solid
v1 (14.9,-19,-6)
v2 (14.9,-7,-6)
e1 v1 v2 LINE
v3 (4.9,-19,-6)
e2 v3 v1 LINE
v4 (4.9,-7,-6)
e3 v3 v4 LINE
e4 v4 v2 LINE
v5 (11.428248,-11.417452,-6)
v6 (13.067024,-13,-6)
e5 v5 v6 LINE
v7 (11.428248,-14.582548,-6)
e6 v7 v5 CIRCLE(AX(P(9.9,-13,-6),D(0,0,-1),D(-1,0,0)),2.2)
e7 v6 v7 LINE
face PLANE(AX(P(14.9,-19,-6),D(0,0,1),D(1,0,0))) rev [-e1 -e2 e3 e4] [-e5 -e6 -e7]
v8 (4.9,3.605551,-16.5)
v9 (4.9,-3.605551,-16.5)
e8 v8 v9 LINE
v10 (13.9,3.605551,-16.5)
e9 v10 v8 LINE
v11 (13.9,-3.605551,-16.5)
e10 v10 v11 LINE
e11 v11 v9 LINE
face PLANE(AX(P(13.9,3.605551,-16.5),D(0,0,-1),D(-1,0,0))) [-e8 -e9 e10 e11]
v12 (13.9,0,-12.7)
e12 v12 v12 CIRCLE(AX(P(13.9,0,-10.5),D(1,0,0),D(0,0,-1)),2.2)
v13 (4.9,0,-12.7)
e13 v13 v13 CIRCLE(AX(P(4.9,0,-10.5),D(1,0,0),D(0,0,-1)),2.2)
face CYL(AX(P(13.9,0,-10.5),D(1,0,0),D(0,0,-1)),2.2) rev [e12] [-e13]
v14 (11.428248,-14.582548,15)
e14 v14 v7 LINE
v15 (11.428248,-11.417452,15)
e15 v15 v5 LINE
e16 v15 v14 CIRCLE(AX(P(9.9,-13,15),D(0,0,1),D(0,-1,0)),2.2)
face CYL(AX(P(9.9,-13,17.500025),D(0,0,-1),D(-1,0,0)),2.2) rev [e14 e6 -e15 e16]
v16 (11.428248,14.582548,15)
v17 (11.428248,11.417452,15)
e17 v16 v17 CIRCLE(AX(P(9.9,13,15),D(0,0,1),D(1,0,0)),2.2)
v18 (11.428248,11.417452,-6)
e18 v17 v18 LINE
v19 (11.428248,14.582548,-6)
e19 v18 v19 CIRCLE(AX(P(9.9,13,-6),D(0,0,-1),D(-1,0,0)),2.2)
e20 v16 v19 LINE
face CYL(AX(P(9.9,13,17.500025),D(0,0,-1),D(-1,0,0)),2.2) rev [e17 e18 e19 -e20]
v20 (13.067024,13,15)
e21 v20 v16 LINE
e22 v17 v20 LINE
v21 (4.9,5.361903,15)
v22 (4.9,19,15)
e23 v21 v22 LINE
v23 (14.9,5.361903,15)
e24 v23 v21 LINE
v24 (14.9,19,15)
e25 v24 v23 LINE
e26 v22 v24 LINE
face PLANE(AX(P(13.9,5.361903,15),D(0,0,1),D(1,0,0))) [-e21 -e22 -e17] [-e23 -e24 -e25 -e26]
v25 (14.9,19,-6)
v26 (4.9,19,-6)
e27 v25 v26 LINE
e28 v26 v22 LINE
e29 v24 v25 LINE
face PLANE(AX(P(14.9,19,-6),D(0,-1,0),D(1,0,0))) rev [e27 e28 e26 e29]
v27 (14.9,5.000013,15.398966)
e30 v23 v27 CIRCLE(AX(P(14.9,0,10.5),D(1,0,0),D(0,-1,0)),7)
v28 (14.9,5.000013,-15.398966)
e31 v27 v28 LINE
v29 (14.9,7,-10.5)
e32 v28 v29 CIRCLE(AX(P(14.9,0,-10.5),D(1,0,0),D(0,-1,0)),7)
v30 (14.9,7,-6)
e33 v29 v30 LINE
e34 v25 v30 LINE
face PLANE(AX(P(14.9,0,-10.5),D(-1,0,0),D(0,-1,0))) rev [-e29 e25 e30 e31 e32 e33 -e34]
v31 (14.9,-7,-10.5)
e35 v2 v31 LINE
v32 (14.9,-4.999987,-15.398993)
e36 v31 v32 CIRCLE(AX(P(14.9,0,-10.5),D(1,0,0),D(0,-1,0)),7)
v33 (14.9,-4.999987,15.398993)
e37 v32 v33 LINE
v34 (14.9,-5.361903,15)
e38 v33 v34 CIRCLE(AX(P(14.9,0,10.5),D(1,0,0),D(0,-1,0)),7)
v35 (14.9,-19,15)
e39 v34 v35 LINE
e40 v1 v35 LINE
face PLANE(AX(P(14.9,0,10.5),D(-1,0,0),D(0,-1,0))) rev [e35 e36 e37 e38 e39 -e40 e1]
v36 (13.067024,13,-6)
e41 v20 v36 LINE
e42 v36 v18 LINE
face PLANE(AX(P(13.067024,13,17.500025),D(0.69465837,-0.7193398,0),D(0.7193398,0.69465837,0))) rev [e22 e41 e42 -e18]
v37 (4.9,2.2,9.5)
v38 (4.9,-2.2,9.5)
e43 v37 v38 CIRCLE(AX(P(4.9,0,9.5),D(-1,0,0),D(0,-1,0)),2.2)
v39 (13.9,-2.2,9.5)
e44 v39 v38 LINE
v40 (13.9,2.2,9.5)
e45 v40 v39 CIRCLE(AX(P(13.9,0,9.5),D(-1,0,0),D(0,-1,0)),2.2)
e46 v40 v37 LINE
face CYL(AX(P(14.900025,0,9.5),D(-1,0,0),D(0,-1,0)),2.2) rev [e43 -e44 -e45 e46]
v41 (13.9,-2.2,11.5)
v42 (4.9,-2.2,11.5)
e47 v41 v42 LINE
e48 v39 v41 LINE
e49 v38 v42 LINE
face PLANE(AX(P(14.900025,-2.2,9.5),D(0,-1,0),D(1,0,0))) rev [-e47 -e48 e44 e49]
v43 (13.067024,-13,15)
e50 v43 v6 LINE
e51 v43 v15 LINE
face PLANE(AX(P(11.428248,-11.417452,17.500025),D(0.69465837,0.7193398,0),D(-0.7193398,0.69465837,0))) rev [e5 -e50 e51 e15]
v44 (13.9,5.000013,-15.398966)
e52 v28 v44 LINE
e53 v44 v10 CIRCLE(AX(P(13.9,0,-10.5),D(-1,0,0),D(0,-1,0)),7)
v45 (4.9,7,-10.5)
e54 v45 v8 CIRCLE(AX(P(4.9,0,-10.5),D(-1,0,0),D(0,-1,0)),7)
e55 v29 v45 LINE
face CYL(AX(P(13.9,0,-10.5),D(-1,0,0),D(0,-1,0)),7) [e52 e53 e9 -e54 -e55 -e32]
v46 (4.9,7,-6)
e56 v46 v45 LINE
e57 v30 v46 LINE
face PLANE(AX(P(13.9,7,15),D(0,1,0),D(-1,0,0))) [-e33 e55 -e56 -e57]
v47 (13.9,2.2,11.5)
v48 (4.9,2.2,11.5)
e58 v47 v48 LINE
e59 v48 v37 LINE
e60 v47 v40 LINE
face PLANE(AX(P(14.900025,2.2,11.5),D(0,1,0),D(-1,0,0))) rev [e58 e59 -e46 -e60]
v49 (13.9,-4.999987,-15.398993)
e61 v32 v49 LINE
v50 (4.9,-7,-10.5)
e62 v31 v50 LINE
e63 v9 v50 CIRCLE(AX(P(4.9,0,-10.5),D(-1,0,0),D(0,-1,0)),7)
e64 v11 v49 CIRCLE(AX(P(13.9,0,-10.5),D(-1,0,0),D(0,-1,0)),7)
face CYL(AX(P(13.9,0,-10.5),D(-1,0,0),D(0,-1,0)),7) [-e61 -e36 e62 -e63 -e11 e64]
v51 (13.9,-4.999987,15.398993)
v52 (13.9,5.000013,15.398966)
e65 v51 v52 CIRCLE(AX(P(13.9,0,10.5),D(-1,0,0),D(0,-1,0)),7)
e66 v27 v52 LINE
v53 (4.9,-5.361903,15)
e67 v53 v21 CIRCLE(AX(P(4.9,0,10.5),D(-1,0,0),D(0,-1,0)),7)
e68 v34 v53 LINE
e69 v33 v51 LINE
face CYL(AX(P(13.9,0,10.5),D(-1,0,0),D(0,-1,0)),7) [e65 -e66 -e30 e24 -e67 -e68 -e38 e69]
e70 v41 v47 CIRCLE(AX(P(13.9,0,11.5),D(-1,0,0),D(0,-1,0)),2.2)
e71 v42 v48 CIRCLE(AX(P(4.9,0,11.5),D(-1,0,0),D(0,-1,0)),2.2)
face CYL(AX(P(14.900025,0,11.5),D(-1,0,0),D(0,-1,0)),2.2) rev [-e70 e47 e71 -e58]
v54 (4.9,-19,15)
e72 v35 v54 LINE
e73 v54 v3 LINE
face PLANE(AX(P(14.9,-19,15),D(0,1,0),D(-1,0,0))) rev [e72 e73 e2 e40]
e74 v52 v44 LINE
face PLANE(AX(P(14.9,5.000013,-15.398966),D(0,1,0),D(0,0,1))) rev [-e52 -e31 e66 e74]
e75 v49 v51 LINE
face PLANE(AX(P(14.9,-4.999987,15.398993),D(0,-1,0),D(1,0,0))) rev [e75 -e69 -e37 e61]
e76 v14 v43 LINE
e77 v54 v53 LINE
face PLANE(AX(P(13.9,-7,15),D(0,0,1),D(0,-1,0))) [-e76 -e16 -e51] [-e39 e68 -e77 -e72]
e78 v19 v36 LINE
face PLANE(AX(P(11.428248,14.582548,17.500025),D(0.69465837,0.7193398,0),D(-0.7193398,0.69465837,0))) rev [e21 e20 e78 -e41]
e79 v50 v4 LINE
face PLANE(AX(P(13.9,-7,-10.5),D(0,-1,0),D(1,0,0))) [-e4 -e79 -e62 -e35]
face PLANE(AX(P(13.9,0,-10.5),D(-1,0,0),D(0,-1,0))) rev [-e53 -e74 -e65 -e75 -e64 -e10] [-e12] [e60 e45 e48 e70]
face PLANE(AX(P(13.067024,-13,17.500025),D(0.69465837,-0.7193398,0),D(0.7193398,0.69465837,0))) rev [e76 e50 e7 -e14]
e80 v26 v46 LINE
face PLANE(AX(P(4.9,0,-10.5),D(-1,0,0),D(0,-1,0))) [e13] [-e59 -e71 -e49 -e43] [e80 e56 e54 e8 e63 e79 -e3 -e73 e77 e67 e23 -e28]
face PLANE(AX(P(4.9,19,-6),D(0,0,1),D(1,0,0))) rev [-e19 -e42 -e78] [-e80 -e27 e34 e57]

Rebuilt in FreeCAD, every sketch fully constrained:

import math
import FreeCAD as App
import Part
import Sketcher
Q = App.Units.Quantity


def add_polygon(sketch, points):
    """Adds a closed chain of lines whose ends are joined by coincident constraints."""
    first, n = sketch.GeometryCount, len(points)
    for a, b in zip(points, points[1:] + points[:1]):
        sketch.addGeometry(Part.LineSegment(App.Vector(*a, 0), App.Vector(*b, 0)), False)
    for i in range(n):
        sketch.addConstraint(Sketcher.Constraint("Coincident", first + i, 2, first + (i + 1) % n, 1))

doc = App.newDocument("Part")
params = doc.addObject("Spreadsheet::Sheet", "Params")
for row, (alias, value) in enumerate([
    ("sketch1_radius", "7 mm"),
    ("sketch1_height", "25.5 mm"),
    ("pad1_length", "9 mm"),
    ("sketch2_radius", "7 mm"),
    ("sketch2_height", "25.5 mm"),
    ("pad2_length", "1 mm"),
    ("sketch3_radius", "7 mm"),
    ("sketch3_height", "25.5 mm"),
    ("pad3_length", "1 mm"),
    ("sketch4_width", "10 mm"),
    ("sketch4_height", "21 mm"),
    ("pad4_length", "12 mm"),
    ("sketch5_width", "10 mm"),
    ("sketch5_height", "21 mm"),
    ("pad5_length", "12 mm"),
    ("sketch6_radius", "2.2 mm"),
    ("sketch7_radius", "2.2 mm"),
    ("sketch7_height", "2 mm"),
    ("sketch8_radius", "2.2 mm"),
    ("sketch9_diameter", "4.4 mm"),
    ("hole_diameter", "4.4 mm"),
], start=1):
    params.set(f"A{row}", alias)
    params.set(f"B{row}", "=" + value)
    params.setAlias(f"B{row}", alias)

body = doc.addObject("PartDesign::Body", "Body")

sketch1 = body.newObject("Sketcher::SketchObject", "Sketch")
sketch1.AttachmentSupport = (doc.getObject("YZ_Plane"), [""])
sketch1.MapMode = "FlatFace"
sketch1.AttachmentOffset = App.Placement(App.Vector(0, 0, 4.9), App.Rotation())
sketch1.addGeometry([
    Part.LineSegment(App.Vector(-7, -10.5, 0), App.Vector(-7, 15, 0)),
    Part.LineSegment(App.Vector(-7, 15, 0), App.Vector(-5.361903, 15, 0)),
    Part.ArcOfCircle(Part.Circle(App.Vector(0, 10.5, 0), App.Vector(0, 0, 1), 7), math.radians(40.005201), math.radians(139.994799)),
    Part.LineSegment(App.Vector(5.361903, 15, 0), App.Vector(7, 15, 0)),
    Part.LineSegment(App.Vector(7, 15, 0), App.Vector(7, -10.5, 0)),
    Part.ArcOfCircle(Part.Circle(App.Vector(0, -10.5, 0), App.Vector(0, 0, 1), 7), math.radians(-58.997281), math.radians(0)),
    Part.LineSegment(App.Vector(3.605551, -16.5, 0), App.Vector(-3.605551, -16.5, 0)),
    Part.ArcOfCircle(Part.Circle(App.Vector(0, -10.5, 0), App.Vector(0, 0, 1), 7), math.radians(180), math.radians(238.997281)),
], False)
sketch1.addConstraint([
    Sketcher.Constraint("Coincident", 0, 2, 1, 1),
    Sketcher.Constraint("Coincident", 1, 2, 2, 2),
    Sketcher.Constraint("Coincident", 2, 1, 3, 1),
    Sketcher.Constraint("Coincident", 3, 2, 4, 1),
    Sketcher.Constraint("Tangent", 4, 2, 5, 2),
    Sketcher.Constraint("Coincident", 5, 1, 6, 1),
    Sketcher.Constraint("Coincident", 6, 2, 7, 2),
    Sketcher.Constraint("Tangent", 7, 1, 0, 1),
    Sketcher.Constraint("Vertical", 0),
    Sketcher.Constraint("Horizontal", 1),
    Sketcher.Constraint("Horizontal", 3),
    Sketcher.Constraint("Vertical", 4),
    Sketcher.Constraint("Horizontal", 6),
    Sketcher.Constraint("Coincident", 7, 3, 5, 3),
    Sketcher.Constraint("Equal", 2, 5),
    Sketcher.Constraint("Equal", 5, 7),
    Sketcher.Constraint("Symmetric", 2, 3, 5, 3, -1, 1),
    Sketcher.Constraint("Symmetric", 1, 2, 2, 1, -2),
    Sketcher.Constraint("Radius", 2, Q("7 mm")),
    Sketcher.Constraint("DistanceY", 0, 1, 0, 2, Q("25.5 mm")),
    Sketcher.Constraint("DistanceY", -1, 1, 0, 2, Q("15 mm")),
    Sketcher.Constraint("DistanceY", 5, 1, 4, 2, Q("6 mm")),
])
sketch1.setExpression("Constraints[18]", "Params.sketch1_radius")
sketch1.setExpression("Constraints[19]", "Params.sketch1_height")
pad1 = body.newObject("PartDesign::Pad", "Pad")
pad1.Profile = sketch1
pad1.setExpression("Length", "Params.pad1_length")

sketch2 = body.newObject("Sketcher::SketchObject", "Sketch001")
sketch2.AttachmentSupport = (doc.getObject("YZ_Plane"), [""])
sketch2.MapMode = "FlatFace"
sketch2.AttachmentOffset = App.Placement(App.Vector(0, 0, 13.9), App.Rotation())
sketch2.addGeometry([
    Part.LineSegment(App.Vector(-5.361903, 15, 0), App.Vector(-7, 15, 0)),
    Part.LineSegment(App.Vector(-7, 15, 0), App.Vector(-7, -10.5, 0)),
    Part.ArcOfCircle(Part.Circle(App.Vector(0, -10.5, 0), App.Vector(0, 0, 1), 7), math.radians(-180), math.radians(-135.584536)),
    Part.LineSegment(App.Vector(-4.999987, -15.398993, 0), App.Vector(-4.999987, 15.398993, 0)),
    Part.ArcOfCircle(Part.Circle(App.Vector(0, 10.5, 0), App.Vector(0, 0, 1), 7), math.radians(135.584536), math.radians(139.994799)),
], False)
sketch2.addConstraint([
    Sketcher.Constraint("Coincident", 0, 2, 1, 1),
    Sketcher.Constraint("Tangent", 1, 2, 2, 1),
    Sketcher.Constraint("Coincident", 2, 2, 3, 1),
    Sketcher.Constraint("Coincident", 3, 2, 4, 1),
    Sketcher.Constraint("Coincident", 4, 2, 0, 1),
    Sketcher.Constraint("Horizontal", 0),
    Sketcher.Constraint("Vertical", 1),
    Sketcher.Constraint("Vertical", 3),
    Sketcher.Constraint("Equal", 2, 4),
    Sketcher.Constraint("Symmetric", 2, 3, 4, 3, -1, 1),
    Sketcher.Constraint("PointOnObject", 2, 3, -2),
    Sketcher.Constraint("Radius", 2, Q("7 mm")),
    Sketcher.Constraint("DistanceY", 1, 2, 1, 1, Q("25.5 mm")),
    Sketcher.Constraint("DistanceY", -1, 1, 0, 2, Q("15 mm")),
    Sketcher.Constraint("DistanceY", 3, 1, 3, 2, Q("30.797986 mm")),
])
sketch2.setExpression("Constraints[11]", "Params.sketch2_radius")
sketch2.setExpression("Constraints[12]", "Params.sketch2_height")
pad2 = body.newObject("PartDesign::Pad", "Pad001")
pad2.Profile = sketch2
pad2.setExpression("Length", "Params.pad2_length")

sketch3 = body.newObject("Sketcher::SketchObject", "Sketch002")
sketch3.AttachmentSupport = (doc.getObject("YZ_Plane"), [""])
sketch3.MapMode = "FlatFace"
sketch3.AttachmentOffset = App.Placement(App.Vector(0, 0, 13.9), App.Rotation())
sketch3.addGeometry([
    Part.LineSegment(App.Vector(7, -10.5, 0), App.Vector(7, 15, 0)),
    Part.LineSegment(App.Vector(7, 15, 0), App.Vector(5.361903, 15, 0)),
    Part.ArcOfCircle(Part.Circle(App.Vector(0, 10.5, 0), App.Vector(0, 0, 1), 7), math.radians(40.005201), math.radians(44.415153)),
    Part.LineSegment(App.Vector(5.000013, 15.398966, 0), App.Vector(5.000013, -15.398966, 0)),
    Part.ArcOfCircle(Part.Circle(App.Vector(0, -10.5, 0), App.Vector(0, 0, 1), 7), math.radians(-44.415153), math.radians(0)),
], False)
sketch3.addConstraint([
    Sketcher.Constraint("Coincident", 0, 2, 1, 1),
    Sketcher.Constraint("Coincident", 1, 2, 2, 1),
    Sketcher.Constraint("Coincident", 2, 2, 3, 1),
    Sketcher.Constraint("Coincident", 3, 2, 4, 1),
    Sketcher.Constraint("Tangent", 4, 2, 0, 1),
    Sketcher.Constraint("Vertical", 0),
    Sketcher.Constraint("Horizontal", 1),
    Sketcher.Constraint("Vertical", 3),
    Sketcher.Constraint("Equal", 2, 4),
    Sketcher.Constraint("Symmetric", 2, 3, 4, 3, -1, 1),
    Sketcher.Constraint("PointOnObject", 2, 3, -2),
    Sketcher.Constraint("Radius", 2, Q("7 mm")),
    Sketcher.Constraint("DistanceY", 0, 1, 0, 2, Q("25.5 mm")),
    Sketcher.Constraint("DistanceY", -1, 1, 0, 2, Q("15 mm")),
    Sketcher.Constraint("DistanceY", 3, 2, 3, 1, Q("30.797932 mm")),
])
sketch3.setExpression("Constraints[11]", "Params.sketch3_radius")
sketch3.setExpression("Constraints[12]", "Params.sketch3_height")
pad3 = body.newObject("PartDesign::Pad", "Pad002")
pad3.Profile = sketch3
pad3.setExpression("Length", "Params.pad3_length")

sketch4 = body.newObject("Sketcher::SketchObject", "Sketch003")
sketch4.AttachmentSupport = (doc.getObject("XZ_Plane"), [""])
sketch4.MapMode = "FlatFace"
sketch4.AttachmentOffset = App.Placement(App.Vector(0, 0, 7), App.Rotation())
add_polygon(sketch4, [(4.9, 15), (4.9, -6), (14.9, -6), (14.9, 15)])
sketch4.addConstraint([
    Sketcher.Constraint("Vertical", 0),
    Sketcher.Constraint("Horizontal", 1),
    Sketcher.Constraint("Vertical", 2),
    Sketcher.Constraint("Horizontal", 3),
    Sketcher.Constraint("DistanceX", 1, 1, 1, 2, Q("10 mm")),
    Sketcher.Constraint("DistanceY", 0, 2, 0, 1, Q("21 mm")),
    Sketcher.Constraint("DistanceY", 0, 2, -1, 1, Q("6 mm")),
    Sketcher.Constraint("DistanceX", -1, 1, 0, 2, Q("4.9 mm")),
])
sketch4.setExpression("Constraints[8]", "Params.sketch4_width")
sketch4.setExpression("Constraints[9]", "Params.sketch4_height")
pad4 = body.newObject("PartDesign::Pad", "Pad003")
pad4.Profile = sketch4
pad4.setExpression("Length", "Params.pad4_length")

sketch5 = body.newObject("Sketcher::SketchObject", "Sketch004")
sketch5.AttachmentSupport = (doc.getObject("XZ_Plane"), [""])
sketch5.MapMode = "FlatFace"
sketch5.AttachmentOffset = App.Placement(App.Vector(0, 0, -7), App.Rotation())
add_polygon(sketch5, [(14.9, 15), (14.9, -6), (4.9, -6), (4.9, 15)])
sketch5.addConstraint([
    Sketcher.Constraint("Vertical", 0),
    Sketcher.Constraint("Horizontal", 1),
    Sketcher.Constraint("Vertical", 2),
    Sketcher.Constraint("Horizontal", 3),
    Sketcher.Constraint("DistanceX", 1, 2, 1, 1, Q("10 mm")),
    Sketcher.Constraint("DistanceY", 0, 2, 0, 1, Q("21 mm")),
    Sketcher.Constraint("DistanceY", 0, 2, -1, 1, Q("6 mm")),
    Sketcher.Constraint("DistanceX", -1, 1, 0, 2, Q("14.9 mm")),
])
sketch5.setExpression("Constraints[8]", "Params.sketch5_width")
sketch5.setExpression("Constraints[9]", "Params.sketch5_height")
pad5 = body.newObject("PartDesign::Pad", "Pad004")
pad5.Profile = sketch5
pad5.setExpression("Length", "Params.pad5_length")
pad5.Reversed = True

sketch6 = body.newObject("Sketcher::SketchObject", "Sketch005")
sketch6.AttachmentSupport = (doc.getObject("XY_Plane"), [""])
sketch6.MapMode = "FlatFace"
sketch6.AttachmentOffset = App.Placement(App.Vector(0, 0, -6), App.Rotation())
sketch6.addGeometry([
    Part.LineSegment(App.Vector(11.428248, 14.582548, 0), App.Vector(13.067024, 13, 0)),
    Part.LineSegment(App.Vector(13.067024, 13, 0), App.Vector(11.428248, 11.417452, 0)),
    Part.ArcOfCircle(Part.Circle(App.Vector(9.9, 13, 0), App.Vector(0, 0, 1), 2.2), math.radians(46), math.radians(314)),
], False)
sketch6.addConstraint([
    Sketcher.Constraint("Coincident", 0, 2, 1, 1),
    Sketcher.Constraint("Tangent", 1, 2, 2, 2),
    Sketcher.Constraint("Tangent", 2, 1, 0, 1),
    Sketcher.Constraint("Horizontal", 2, 3, 0, 2),
    Sketcher.Constraint("Radius", 2, Q("2.2 mm")),
    Sketcher.Constraint("Angle", 0, Q("-44 deg")),
    Sketcher.Constraint("DistanceY", -1, 1, 2, 3, Q("13 mm")),
    Sketcher.Constraint("DistanceX", -1, 1, 2, 3, Q("9.9 mm")),
])
sketch6.setExpression("Constraints[4]", "Params.sketch6_radius")
pocket1 = body.newObject("PartDesign::Pocket", "Pocket")
pocket1.Profile = sketch6
pocket1.Type = "ThroughAll"
pocket1.Reversed = True

sketch7 = body.newObject("Sketcher::SketchObject", "Sketch006")
sketch7.AttachmentSupport = (doc.getObject("YZ_Plane"), [""])
sketch7.MapMode = "FlatFace"
sketch7.AttachmentOffset = App.Placement(App.Vector(0, 0, 4.9), App.Rotation())
sketch7.addGeometry([
    Part.LineSegment(App.Vector(-2.2, 9.5, 0), App.Vector(-2.2, 11.5, 0)),
    Part.ArcOfCircle(Part.Circle(App.Vector(0, 11.5, 0), App.Vector(0, 0, 1), 2.2), math.radians(0), math.radians(180)),
    Part.LineSegment(App.Vector(2.2, 11.5, 0), App.Vector(2.2, 9.5, 0)),
    Part.ArcOfCircle(Part.Circle(App.Vector(0, 9.5, 0), App.Vector(0, 0, 1), 2.2), math.radians(180), math.radians(360)),
], False)
sketch7.addConstraint([
    Sketcher.Constraint("Tangent", 0, 2, 1, 2),
    Sketcher.Constraint("Tangent", 1, 1, 2, 1),
    Sketcher.Constraint("Tangent", 2, 2, 3, 2),
    Sketcher.Constraint("Tangent", 3, 1, 0, 1),
    Sketcher.Constraint("Vertical", 0),
    Sketcher.Constraint("Vertical", 2),
    Sketcher.Constraint("PointOnObject", 1, 3, -2),
    Sketcher.Constraint("Radius", 1, Q("2.2 mm")),
    Sketcher.Constraint("DistanceY", 0, 1, 0, 2, Q("2 mm")),
    Sketcher.Constraint("DistanceY", -1, 1, 1, 3, Q("11.5 mm")),
])
sketch7.setExpression("Constraints[7]", "Params.sketch7_radius")
sketch7.setExpression("Constraints[8]", "Params.sketch7_height")
pocket2 = body.newObject("PartDesign::Pocket", "Pocket001")
pocket2.Profile = sketch7
pocket2.Type = "ThroughAll"
pocket2.Reversed = True

sketch8 = body.newObject("Sketcher::SketchObject", "Sketch007")
sketch8.AttachmentSupport = (doc.getObject("XY_Plane"), [""])
sketch8.MapMode = "FlatFace"
sketch8.AttachmentOffset = App.Placement(App.Vector(0, 0, -6), App.Rotation())
sketch8.addGeometry([
    Part.LineSegment(App.Vector(11.428248, -11.417452, 0), App.Vector(13.067024, -13, 0)),
    Part.LineSegment(App.Vector(13.067024, -13, 0), App.Vector(11.428248, -14.582548, 0)),
    Part.ArcOfCircle(Part.Circle(App.Vector(9.9, -13, 0), App.Vector(0, 0, 1), 2.2), math.radians(46), math.radians(314)),
], False)
sketch8.addConstraint([
    Sketcher.Constraint("Coincident", 0, 2, 1, 1),
    Sketcher.Constraint("Tangent", 1, 2, 2, 2),
    Sketcher.Constraint("Tangent", 2, 1, 0, 1),
    Sketcher.Constraint("Horizontal", 2, 3, 0, 2),
    Sketcher.Constraint("Radius", 2, Q("2.2 mm")),
    Sketcher.Constraint("Angle", 0, Q("-44 deg")),
    Sketcher.Constraint("DistanceY", 2, 3, -1, 1, Q("13 mm")),
    Sketcher.Constraint("DistanceX", -1, 1, 2, 3, Q("9.9 mm")),
])
sketch8.setExpression("Constraints[4]", "Params.sketch8_radius")
pocket3 = body.newObject("PartDesign::Pocket", "Pocket002")
pocket3.Profile = sketch8
pocket3.Type = "ThroughAll"
pocket3.Reversed = True

sketch9 = body.newObject("Sketcher::SketchObject", "Sketch008")
sketch9.AttachmentSupport = (doc.getObject("YZ_Plane"), [""])
sketch9.MapMode = "FlatFace"
sketch9.AttachmentOffset = App.Placement(App.Vector(0, 0, 13.9), App.Rotation())
sketch9.addGeometry(Part.Circle(App.Vector(0, -10.5, 0), App.Vector(0, 0, 1), 2.2), False)
sketch9.addConstraint([
    Sketcher.Constraint("PointOnObject", 0, 3, -2),
    Sketcher.Constraint("Diameter", 0, Q("4.4 mm")),
    Sketcher.Constraint("DistanceY", 0, 3, -1, 1, Q("10.5 mm")),
])
sketch9.setExpression("Constraints[1]", "Params.sketch9_diameter")
doc.recompute()
hole = body.newObject("PartDesign::Hole", "Hole")
hole.Profile = sketch9
hole.ThreadType = "None"
hole.setExpression("Diameter", "Params.hole_diameter")
hole.DepthType = "ThroughAll"

doc.recompute()
